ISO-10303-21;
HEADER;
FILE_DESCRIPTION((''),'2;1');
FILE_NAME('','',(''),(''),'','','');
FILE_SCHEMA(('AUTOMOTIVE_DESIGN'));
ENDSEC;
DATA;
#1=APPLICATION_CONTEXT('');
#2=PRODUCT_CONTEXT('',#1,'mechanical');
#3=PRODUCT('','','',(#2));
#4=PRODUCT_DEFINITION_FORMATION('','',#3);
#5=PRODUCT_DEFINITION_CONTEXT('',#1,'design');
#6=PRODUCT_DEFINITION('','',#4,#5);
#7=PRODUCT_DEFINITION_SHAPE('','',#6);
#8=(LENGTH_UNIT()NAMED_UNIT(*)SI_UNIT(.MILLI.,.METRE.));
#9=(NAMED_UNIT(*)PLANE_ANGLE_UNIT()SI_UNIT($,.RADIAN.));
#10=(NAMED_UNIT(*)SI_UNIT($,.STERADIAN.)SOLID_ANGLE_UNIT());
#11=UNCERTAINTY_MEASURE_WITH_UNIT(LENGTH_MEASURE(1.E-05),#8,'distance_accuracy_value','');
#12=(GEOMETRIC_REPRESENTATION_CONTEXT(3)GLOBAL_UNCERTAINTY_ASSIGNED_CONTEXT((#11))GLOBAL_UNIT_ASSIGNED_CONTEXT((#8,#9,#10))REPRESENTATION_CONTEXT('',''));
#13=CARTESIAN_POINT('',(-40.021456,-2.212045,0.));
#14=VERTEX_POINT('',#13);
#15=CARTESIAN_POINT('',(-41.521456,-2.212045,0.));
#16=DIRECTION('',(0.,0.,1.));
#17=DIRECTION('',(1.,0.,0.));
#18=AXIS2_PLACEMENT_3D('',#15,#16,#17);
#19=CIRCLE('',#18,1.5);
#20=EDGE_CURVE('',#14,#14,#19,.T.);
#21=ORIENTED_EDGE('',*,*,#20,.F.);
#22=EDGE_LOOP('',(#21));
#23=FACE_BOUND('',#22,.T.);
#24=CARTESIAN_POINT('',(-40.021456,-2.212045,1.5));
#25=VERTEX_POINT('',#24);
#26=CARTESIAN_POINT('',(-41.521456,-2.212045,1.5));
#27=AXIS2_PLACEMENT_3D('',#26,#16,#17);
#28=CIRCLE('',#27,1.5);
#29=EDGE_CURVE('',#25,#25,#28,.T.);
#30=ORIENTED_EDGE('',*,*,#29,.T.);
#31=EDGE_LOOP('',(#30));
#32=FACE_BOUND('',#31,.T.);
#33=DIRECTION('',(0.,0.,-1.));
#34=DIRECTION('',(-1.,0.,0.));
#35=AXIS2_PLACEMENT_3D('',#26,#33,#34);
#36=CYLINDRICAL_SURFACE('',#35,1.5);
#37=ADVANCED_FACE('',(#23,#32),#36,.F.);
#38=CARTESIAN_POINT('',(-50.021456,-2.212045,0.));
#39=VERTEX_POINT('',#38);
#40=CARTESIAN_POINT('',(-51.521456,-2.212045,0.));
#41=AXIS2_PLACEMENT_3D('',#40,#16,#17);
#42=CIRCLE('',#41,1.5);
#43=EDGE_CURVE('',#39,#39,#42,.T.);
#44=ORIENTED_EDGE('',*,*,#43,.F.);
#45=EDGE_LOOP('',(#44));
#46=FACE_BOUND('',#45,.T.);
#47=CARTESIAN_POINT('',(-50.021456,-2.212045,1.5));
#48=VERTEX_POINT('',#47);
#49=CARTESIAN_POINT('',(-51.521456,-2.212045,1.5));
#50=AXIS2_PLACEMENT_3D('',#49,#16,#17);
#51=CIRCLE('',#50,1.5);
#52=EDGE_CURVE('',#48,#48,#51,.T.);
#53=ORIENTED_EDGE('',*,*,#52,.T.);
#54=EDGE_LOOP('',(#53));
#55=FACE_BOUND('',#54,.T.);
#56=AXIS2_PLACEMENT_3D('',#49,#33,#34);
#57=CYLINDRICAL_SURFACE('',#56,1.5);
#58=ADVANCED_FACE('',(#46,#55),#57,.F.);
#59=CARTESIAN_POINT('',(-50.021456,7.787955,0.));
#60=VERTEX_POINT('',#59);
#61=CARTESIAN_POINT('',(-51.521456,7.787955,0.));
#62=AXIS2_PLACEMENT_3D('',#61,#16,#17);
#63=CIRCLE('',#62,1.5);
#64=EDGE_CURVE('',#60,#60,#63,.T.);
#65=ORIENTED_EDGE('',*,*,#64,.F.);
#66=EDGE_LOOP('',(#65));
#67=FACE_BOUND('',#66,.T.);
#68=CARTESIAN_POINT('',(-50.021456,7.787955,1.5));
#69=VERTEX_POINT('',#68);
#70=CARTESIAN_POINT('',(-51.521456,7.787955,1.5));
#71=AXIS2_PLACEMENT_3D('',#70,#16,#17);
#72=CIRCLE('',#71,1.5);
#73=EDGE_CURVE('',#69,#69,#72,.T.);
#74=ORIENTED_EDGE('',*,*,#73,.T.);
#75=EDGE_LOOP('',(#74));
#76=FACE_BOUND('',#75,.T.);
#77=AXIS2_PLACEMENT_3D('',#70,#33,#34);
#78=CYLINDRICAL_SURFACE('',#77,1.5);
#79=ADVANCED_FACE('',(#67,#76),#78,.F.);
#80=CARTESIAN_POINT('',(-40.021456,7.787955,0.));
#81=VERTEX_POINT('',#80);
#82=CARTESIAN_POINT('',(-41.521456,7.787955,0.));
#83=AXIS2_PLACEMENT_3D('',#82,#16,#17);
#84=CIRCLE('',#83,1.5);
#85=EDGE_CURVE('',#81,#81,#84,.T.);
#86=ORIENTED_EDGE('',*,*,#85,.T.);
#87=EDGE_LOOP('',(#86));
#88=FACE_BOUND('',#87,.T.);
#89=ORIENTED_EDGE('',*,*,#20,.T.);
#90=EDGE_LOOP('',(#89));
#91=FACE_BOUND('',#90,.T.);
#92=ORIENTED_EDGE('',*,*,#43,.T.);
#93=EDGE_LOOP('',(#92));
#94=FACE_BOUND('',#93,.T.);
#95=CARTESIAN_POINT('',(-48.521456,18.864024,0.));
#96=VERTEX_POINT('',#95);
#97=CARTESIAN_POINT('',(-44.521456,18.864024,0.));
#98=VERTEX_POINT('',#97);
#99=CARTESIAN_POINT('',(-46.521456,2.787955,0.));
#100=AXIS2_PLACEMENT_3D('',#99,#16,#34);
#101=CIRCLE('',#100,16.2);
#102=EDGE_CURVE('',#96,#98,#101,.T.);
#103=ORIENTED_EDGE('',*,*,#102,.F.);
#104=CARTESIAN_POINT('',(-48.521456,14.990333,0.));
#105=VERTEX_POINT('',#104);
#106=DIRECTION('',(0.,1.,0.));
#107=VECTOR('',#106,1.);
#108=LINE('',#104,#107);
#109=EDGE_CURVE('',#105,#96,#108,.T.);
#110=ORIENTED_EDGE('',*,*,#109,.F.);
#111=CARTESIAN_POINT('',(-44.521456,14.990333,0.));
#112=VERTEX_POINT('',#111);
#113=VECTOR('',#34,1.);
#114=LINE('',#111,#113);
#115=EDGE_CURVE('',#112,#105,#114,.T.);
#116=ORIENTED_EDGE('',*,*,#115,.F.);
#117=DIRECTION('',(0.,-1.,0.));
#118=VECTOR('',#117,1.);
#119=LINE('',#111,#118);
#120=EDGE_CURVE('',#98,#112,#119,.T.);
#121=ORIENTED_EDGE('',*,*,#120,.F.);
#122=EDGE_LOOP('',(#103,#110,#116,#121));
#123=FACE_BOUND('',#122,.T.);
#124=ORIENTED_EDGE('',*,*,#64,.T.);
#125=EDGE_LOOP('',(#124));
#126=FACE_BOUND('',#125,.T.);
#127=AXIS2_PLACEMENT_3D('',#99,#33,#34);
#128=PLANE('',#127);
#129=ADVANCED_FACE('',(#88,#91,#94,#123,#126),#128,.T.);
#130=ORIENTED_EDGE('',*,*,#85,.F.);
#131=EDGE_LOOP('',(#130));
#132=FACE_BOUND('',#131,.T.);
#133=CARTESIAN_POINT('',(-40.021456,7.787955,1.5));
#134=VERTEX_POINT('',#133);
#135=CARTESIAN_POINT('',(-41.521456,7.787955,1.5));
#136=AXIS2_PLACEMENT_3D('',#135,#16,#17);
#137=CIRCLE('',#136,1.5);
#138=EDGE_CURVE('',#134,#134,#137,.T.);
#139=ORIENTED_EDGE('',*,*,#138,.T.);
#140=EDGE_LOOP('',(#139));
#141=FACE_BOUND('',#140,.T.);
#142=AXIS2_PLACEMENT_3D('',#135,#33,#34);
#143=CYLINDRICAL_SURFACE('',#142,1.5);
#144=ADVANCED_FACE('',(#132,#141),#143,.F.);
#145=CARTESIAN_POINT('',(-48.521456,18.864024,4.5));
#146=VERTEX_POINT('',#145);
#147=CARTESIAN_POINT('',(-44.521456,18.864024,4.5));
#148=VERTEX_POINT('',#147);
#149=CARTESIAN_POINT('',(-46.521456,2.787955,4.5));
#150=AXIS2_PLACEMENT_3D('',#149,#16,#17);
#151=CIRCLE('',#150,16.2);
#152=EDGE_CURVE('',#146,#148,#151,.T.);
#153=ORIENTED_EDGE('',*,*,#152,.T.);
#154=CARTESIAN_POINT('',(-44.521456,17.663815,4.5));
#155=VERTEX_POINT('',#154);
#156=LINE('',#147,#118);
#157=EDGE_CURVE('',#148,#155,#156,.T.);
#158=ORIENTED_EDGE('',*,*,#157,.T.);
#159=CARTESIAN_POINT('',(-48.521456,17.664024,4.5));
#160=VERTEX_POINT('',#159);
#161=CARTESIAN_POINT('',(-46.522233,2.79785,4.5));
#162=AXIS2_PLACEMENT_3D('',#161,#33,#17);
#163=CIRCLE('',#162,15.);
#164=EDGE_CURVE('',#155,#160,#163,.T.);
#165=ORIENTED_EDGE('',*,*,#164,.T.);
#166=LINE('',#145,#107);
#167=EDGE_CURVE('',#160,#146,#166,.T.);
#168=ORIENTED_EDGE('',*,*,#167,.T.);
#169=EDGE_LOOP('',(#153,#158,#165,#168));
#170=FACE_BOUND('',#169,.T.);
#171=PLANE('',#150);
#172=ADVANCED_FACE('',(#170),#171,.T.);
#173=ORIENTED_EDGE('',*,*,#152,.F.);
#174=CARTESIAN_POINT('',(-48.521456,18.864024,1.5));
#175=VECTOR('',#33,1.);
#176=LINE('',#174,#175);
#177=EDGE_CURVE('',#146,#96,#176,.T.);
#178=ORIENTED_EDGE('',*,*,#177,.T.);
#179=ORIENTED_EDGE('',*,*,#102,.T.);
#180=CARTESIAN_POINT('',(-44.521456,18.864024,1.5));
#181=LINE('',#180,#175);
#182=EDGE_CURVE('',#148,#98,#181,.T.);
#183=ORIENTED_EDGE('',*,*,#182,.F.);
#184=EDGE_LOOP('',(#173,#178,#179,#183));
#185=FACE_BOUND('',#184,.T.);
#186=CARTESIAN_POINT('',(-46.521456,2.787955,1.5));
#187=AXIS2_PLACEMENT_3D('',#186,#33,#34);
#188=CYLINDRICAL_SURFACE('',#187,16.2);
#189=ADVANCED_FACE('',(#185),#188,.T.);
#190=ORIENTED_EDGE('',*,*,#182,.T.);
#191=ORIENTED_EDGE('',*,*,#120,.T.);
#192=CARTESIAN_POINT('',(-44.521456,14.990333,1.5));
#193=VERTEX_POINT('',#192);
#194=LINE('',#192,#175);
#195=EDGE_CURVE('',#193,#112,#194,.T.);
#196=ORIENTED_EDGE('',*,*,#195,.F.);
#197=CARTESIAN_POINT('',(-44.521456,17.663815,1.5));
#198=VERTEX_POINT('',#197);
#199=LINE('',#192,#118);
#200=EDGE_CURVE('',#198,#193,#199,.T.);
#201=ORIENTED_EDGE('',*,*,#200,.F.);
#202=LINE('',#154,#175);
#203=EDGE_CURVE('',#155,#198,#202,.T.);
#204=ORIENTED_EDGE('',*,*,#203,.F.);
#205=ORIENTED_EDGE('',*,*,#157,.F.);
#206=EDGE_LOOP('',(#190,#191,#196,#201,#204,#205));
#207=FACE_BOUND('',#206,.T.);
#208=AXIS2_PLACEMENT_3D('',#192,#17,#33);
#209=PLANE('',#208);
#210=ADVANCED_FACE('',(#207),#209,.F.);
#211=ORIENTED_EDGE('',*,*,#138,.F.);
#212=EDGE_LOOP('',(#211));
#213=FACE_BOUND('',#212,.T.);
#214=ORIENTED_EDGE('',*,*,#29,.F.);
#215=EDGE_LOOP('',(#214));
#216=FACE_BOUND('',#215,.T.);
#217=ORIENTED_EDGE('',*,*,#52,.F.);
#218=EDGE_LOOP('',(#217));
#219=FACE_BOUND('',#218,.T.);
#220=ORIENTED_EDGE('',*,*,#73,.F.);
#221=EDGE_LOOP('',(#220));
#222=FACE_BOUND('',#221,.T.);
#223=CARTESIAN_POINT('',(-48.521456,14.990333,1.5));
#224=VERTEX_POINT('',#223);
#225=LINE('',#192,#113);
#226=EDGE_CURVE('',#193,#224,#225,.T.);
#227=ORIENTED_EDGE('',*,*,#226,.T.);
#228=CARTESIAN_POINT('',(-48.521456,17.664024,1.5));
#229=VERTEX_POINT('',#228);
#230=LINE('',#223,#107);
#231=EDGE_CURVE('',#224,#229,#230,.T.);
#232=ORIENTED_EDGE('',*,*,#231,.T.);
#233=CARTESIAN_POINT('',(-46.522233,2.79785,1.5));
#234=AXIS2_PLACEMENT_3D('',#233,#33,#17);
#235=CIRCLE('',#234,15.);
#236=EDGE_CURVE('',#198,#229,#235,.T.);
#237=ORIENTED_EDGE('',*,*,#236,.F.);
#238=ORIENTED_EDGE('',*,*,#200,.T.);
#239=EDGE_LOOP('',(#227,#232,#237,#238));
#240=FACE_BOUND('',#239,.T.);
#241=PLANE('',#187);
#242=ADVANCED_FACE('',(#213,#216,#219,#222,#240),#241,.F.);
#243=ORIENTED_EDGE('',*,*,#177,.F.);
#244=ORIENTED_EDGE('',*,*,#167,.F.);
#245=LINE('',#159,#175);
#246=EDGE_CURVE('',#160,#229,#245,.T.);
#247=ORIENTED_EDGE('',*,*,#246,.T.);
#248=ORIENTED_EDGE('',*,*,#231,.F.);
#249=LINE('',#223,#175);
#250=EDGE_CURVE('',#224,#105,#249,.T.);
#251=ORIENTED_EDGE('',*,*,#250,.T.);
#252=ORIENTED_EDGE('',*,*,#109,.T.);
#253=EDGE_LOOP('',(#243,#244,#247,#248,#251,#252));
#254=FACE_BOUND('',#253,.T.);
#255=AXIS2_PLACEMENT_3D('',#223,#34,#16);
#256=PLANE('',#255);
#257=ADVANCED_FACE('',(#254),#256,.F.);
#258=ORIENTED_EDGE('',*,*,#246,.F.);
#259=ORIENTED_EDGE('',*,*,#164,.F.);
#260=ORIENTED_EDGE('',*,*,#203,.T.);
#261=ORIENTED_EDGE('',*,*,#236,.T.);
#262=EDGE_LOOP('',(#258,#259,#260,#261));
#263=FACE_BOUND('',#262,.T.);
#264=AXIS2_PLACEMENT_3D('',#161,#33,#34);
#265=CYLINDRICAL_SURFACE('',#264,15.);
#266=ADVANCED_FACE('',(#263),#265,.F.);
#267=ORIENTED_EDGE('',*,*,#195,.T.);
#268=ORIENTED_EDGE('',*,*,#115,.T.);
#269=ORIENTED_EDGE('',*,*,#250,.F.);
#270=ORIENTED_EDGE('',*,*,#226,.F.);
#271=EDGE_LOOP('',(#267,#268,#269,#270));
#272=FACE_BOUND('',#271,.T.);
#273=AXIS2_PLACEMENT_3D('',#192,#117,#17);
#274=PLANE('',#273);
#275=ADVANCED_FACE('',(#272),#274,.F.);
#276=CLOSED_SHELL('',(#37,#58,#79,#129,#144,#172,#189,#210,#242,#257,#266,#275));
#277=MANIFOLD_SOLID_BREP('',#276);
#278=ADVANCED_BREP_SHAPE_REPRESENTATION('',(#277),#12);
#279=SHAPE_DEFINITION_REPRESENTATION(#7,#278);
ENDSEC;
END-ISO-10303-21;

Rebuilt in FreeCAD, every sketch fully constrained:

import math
import FreeCAD as App
import Part
import Sketcher
from FreeCAD import Vector
Q = App.Units.Quantity

doc = App.newDocument("Part")
body = doc.addObject("PartDesign::Body", "Body")

# Sketch on XY plane
sketch1 = doc.addObject("Sketcher::SketchObject", "Sketch")
body.addObject(sketch1)
sketch1.AttachmentSupport = (doc.XY_Plane, [""])
sketch1.MapMode = "FlatFace"
sketch1.addGeometry(Part.LineSegment(Vector(-48.521456, 14.990333, 0), Vector(-48.521456, 18.864024, 0)), False)
sketch1.addGeometry(Part.ArcOfCircle(Part.Circle(Vector(-46.521456, 2.787955, 0), Vector(0, 0, 1), 16.2), math.radians(97.091646), math.radians(442.908354)), False)
sketch1.addGeometry(Part.LineSegment(Vector(-44.521456, 18.864024, 0), Vector(-44.521456, 14.990333, 0)), False)
sketch1.addGeometry(Part.LineSegment(Vector(-44.521456, 14.990333, 0), Vector(-48.521456, 14.990333, 0)), False)
sketch1.addGeometry(Part.Circle(Vector(-51.521456, -2.212045, 0), Vector(0, 0, 1), 1.5), False)
sketch1.addGeometry(Part.Circle(Vector(-41.521456, -2.212045, 0), Vector(0, 0, 1), 1.5), False)
sketch1.addGeometry(Part.Circle(Vector(-51.521456, 7.787955, 0), Vector(0, 0, 1), 1.5), False)
sketch1.addGeometry(Part.Circle(Vector(-41.521456, 7.787955, 0), Vector(0, 0, 1), 1.5), False)
sketch1.addConstraint(Sketcher.Constraint("Coincident", 0, 2, 1, 1))
sketch1.addConstraint(Sketcher.Constraint("Coincident", 1, 2, 2, 1))
sketch1.addConstraint(Sketcher.Constraint("Coincident", 2, 2, 3, 1))
sketch1.addConstraint(Sketcher.Constraint("Coincident", 3, 2, 0, 1))
sketch1.addConstraint(Sketcher.Constraint("Vertical", 0))
sketch1.addConstraint(Sketcher.Constraint("Vertical", 2))
sketch1.addConstraint(Sketcher.Constraint("Horizontal", 3))
sketch1.addConstraint(Sketcher.Constraint("Equal", 4, 5))
sketch1.addConstraint(Sketcher.Constraint("Equal", 5, 6))
sketch1.addConstraint(Sketcher.Constraint("Equal", 6, 7))
sketch1.addConstraint(Sketcher.Constraint("Horizontal", 4, 3, 5, 3))
sketch1.addConstraint(Sketcher.Constraint("Horizontal", 6, 3, 7, 3))
sketch1.addConstraint(Sketcher.Constraint("Horizontal", 0, 2, 1, 2))
sketch1.addConstraint(Sketcher.Constraint("Vertical", 4, 3, 6, 3))
sketch1.addConstraint(Sketcher.Constraint("Vertical", 5, 3, 7, 3))
sketch1.addConstraint(Sketcher.Constraint("Diameter", 4, Q("3 mm")))
sketch1.addConstraint(Sketcher.Constraint("Radius", 1, Q("16.2 mm")))
sketch1.addConstraint(Sketcher.Constraint("DistanceX", 3, 2, 3, 1, Q("4 mm")))
sketch1.addConstraint(Sketcher.Constraint("DistanceX", 4, 3, 1, 3, Q("5 mm")))
sketch1.addConstraint(Sketcher.Constraint("DistanceY", 4, 3, 1, 3, Q("5 mm")))
sketch1.addConstraint(Sketcher.Constraint("DistanceX", 1, 3, 5, 3, Q("5 mm")))
sketch1.addConstraint(Sketcher.Constraint("DistanceY", 1, 3, 6, 3, Q("5 mm")))
sketch1.addConstraint(Sketcher.Constraint("DistanceY", 0, 1, 0, 2, Q("3.87369 mm")))
sketch1.addConstraint(Sketcher.Constraint("DistanceX", 1, 3, -1, 1, Q("46.521456 mm")))
sketch1.addConstraint(Sketcher.Constraint("DistanceY", -1, 1, 1, 3, Q("2.787955 mm")))
pad1 = doc.addObject("PartDesign::Pad", "Pad")
body.addObject(pad1)
pad1.Profile = sketch1
pad1.Length = 1.5

# Sketch on XY plane
sketch2 = doc.addObject("Sketcher::SketchObject", "Sketch001")
body.addObject(sketch2)
sketch2.AttachmentSupport = (doc.XY_Plane, [""])
sketch2.MapMode = "FlatFace"
sketch2.AttachmentOffset = App.Placement(Vector(0, 0, 1.5), App.Rotation())
sketch2.addGeometry(Part.LineSegment(Vector(-48.521456, 17.664024, 0), Vector(-48.521456, 18.864024, 0)), False)
sketch2.addGeometry(Part.ArcOfCircle(Part.Circle(Vector(-46.521456, 2.787955, 0), Vector(0, 0, 1), 16.2), math.radians(97.091646), math.radians(442.908354)), False)
sketch2.addGeometry(Part.LineSegment(Vector(-44.521456, 18.864024, 0), Vector(-44.521456, 17.663815, 0)), False)
sketch2.addGeometry(Part.ArcOfCircle(Part.Circle(Vector(-46.522233, 2.79785, 0), Vector(0, 0, 1), 15), math.radians(97.659262), math.radians(442.33475)), False)
sketch2.addConstraint(Sketcher.Constraint("Coincident", 0, 2, 1, 1))
sketch2.addConstraint(Sketcher.Constraint("Coincident", 1, 2, 2, 1))
sketch2.addConstraint(Sketcher.Constraint("Coincident", 2, 2, 3, 2))
sketch2.addConstraint(Sketcher.Constraint("Coincident", 3, 1, 0, 1))
sketch2.addConstraint(Sketcher.Constraint("Vertical", 0))
sketch2.addConstraint(Sketcher.Constraint("Vertical", 2))
sketch2.addConstraint(Sketcher.Constraint("Horizontal", 0, 2, 1, 2))
sketch2.addConstraint(Sketcher.Constraint("Radius", 3, Q("15 mm")))
sketch2.addConstraint(Sketcher.Constraint("Radius", 1, Q("16.2 mm")))
sketch2.addConstraint(Sketcher.Constraint("DistanceY", 0, 1, 0, 2, Q("1.2 mm")))
sketch2.addConstraint(Sketcher.Constraint("DistanceX", 0, 2, 1, 3, Q("2 mm")))
sketch2.addConstraint(Sketcher.Constraint("DistanceY", 2, 2, 2, 1, Q("1.200209 mm")))
sketch2.addConstraint(Sketcher.Constraint("DistanceY", -1, 1, 3, 3, Q("2.79785 mm")))
sketch2.addConstraint(Sketcher.Constraint("DistanceX", 1, 3, -1, 1, Q("46.521456 mm")))
pad2 = doc.addObject("PartDesign::Pad", "Pad001")
body.addObject(pad2)
pad2.Profile = sketch2
pad2.Length = 3

doc.recompute()
